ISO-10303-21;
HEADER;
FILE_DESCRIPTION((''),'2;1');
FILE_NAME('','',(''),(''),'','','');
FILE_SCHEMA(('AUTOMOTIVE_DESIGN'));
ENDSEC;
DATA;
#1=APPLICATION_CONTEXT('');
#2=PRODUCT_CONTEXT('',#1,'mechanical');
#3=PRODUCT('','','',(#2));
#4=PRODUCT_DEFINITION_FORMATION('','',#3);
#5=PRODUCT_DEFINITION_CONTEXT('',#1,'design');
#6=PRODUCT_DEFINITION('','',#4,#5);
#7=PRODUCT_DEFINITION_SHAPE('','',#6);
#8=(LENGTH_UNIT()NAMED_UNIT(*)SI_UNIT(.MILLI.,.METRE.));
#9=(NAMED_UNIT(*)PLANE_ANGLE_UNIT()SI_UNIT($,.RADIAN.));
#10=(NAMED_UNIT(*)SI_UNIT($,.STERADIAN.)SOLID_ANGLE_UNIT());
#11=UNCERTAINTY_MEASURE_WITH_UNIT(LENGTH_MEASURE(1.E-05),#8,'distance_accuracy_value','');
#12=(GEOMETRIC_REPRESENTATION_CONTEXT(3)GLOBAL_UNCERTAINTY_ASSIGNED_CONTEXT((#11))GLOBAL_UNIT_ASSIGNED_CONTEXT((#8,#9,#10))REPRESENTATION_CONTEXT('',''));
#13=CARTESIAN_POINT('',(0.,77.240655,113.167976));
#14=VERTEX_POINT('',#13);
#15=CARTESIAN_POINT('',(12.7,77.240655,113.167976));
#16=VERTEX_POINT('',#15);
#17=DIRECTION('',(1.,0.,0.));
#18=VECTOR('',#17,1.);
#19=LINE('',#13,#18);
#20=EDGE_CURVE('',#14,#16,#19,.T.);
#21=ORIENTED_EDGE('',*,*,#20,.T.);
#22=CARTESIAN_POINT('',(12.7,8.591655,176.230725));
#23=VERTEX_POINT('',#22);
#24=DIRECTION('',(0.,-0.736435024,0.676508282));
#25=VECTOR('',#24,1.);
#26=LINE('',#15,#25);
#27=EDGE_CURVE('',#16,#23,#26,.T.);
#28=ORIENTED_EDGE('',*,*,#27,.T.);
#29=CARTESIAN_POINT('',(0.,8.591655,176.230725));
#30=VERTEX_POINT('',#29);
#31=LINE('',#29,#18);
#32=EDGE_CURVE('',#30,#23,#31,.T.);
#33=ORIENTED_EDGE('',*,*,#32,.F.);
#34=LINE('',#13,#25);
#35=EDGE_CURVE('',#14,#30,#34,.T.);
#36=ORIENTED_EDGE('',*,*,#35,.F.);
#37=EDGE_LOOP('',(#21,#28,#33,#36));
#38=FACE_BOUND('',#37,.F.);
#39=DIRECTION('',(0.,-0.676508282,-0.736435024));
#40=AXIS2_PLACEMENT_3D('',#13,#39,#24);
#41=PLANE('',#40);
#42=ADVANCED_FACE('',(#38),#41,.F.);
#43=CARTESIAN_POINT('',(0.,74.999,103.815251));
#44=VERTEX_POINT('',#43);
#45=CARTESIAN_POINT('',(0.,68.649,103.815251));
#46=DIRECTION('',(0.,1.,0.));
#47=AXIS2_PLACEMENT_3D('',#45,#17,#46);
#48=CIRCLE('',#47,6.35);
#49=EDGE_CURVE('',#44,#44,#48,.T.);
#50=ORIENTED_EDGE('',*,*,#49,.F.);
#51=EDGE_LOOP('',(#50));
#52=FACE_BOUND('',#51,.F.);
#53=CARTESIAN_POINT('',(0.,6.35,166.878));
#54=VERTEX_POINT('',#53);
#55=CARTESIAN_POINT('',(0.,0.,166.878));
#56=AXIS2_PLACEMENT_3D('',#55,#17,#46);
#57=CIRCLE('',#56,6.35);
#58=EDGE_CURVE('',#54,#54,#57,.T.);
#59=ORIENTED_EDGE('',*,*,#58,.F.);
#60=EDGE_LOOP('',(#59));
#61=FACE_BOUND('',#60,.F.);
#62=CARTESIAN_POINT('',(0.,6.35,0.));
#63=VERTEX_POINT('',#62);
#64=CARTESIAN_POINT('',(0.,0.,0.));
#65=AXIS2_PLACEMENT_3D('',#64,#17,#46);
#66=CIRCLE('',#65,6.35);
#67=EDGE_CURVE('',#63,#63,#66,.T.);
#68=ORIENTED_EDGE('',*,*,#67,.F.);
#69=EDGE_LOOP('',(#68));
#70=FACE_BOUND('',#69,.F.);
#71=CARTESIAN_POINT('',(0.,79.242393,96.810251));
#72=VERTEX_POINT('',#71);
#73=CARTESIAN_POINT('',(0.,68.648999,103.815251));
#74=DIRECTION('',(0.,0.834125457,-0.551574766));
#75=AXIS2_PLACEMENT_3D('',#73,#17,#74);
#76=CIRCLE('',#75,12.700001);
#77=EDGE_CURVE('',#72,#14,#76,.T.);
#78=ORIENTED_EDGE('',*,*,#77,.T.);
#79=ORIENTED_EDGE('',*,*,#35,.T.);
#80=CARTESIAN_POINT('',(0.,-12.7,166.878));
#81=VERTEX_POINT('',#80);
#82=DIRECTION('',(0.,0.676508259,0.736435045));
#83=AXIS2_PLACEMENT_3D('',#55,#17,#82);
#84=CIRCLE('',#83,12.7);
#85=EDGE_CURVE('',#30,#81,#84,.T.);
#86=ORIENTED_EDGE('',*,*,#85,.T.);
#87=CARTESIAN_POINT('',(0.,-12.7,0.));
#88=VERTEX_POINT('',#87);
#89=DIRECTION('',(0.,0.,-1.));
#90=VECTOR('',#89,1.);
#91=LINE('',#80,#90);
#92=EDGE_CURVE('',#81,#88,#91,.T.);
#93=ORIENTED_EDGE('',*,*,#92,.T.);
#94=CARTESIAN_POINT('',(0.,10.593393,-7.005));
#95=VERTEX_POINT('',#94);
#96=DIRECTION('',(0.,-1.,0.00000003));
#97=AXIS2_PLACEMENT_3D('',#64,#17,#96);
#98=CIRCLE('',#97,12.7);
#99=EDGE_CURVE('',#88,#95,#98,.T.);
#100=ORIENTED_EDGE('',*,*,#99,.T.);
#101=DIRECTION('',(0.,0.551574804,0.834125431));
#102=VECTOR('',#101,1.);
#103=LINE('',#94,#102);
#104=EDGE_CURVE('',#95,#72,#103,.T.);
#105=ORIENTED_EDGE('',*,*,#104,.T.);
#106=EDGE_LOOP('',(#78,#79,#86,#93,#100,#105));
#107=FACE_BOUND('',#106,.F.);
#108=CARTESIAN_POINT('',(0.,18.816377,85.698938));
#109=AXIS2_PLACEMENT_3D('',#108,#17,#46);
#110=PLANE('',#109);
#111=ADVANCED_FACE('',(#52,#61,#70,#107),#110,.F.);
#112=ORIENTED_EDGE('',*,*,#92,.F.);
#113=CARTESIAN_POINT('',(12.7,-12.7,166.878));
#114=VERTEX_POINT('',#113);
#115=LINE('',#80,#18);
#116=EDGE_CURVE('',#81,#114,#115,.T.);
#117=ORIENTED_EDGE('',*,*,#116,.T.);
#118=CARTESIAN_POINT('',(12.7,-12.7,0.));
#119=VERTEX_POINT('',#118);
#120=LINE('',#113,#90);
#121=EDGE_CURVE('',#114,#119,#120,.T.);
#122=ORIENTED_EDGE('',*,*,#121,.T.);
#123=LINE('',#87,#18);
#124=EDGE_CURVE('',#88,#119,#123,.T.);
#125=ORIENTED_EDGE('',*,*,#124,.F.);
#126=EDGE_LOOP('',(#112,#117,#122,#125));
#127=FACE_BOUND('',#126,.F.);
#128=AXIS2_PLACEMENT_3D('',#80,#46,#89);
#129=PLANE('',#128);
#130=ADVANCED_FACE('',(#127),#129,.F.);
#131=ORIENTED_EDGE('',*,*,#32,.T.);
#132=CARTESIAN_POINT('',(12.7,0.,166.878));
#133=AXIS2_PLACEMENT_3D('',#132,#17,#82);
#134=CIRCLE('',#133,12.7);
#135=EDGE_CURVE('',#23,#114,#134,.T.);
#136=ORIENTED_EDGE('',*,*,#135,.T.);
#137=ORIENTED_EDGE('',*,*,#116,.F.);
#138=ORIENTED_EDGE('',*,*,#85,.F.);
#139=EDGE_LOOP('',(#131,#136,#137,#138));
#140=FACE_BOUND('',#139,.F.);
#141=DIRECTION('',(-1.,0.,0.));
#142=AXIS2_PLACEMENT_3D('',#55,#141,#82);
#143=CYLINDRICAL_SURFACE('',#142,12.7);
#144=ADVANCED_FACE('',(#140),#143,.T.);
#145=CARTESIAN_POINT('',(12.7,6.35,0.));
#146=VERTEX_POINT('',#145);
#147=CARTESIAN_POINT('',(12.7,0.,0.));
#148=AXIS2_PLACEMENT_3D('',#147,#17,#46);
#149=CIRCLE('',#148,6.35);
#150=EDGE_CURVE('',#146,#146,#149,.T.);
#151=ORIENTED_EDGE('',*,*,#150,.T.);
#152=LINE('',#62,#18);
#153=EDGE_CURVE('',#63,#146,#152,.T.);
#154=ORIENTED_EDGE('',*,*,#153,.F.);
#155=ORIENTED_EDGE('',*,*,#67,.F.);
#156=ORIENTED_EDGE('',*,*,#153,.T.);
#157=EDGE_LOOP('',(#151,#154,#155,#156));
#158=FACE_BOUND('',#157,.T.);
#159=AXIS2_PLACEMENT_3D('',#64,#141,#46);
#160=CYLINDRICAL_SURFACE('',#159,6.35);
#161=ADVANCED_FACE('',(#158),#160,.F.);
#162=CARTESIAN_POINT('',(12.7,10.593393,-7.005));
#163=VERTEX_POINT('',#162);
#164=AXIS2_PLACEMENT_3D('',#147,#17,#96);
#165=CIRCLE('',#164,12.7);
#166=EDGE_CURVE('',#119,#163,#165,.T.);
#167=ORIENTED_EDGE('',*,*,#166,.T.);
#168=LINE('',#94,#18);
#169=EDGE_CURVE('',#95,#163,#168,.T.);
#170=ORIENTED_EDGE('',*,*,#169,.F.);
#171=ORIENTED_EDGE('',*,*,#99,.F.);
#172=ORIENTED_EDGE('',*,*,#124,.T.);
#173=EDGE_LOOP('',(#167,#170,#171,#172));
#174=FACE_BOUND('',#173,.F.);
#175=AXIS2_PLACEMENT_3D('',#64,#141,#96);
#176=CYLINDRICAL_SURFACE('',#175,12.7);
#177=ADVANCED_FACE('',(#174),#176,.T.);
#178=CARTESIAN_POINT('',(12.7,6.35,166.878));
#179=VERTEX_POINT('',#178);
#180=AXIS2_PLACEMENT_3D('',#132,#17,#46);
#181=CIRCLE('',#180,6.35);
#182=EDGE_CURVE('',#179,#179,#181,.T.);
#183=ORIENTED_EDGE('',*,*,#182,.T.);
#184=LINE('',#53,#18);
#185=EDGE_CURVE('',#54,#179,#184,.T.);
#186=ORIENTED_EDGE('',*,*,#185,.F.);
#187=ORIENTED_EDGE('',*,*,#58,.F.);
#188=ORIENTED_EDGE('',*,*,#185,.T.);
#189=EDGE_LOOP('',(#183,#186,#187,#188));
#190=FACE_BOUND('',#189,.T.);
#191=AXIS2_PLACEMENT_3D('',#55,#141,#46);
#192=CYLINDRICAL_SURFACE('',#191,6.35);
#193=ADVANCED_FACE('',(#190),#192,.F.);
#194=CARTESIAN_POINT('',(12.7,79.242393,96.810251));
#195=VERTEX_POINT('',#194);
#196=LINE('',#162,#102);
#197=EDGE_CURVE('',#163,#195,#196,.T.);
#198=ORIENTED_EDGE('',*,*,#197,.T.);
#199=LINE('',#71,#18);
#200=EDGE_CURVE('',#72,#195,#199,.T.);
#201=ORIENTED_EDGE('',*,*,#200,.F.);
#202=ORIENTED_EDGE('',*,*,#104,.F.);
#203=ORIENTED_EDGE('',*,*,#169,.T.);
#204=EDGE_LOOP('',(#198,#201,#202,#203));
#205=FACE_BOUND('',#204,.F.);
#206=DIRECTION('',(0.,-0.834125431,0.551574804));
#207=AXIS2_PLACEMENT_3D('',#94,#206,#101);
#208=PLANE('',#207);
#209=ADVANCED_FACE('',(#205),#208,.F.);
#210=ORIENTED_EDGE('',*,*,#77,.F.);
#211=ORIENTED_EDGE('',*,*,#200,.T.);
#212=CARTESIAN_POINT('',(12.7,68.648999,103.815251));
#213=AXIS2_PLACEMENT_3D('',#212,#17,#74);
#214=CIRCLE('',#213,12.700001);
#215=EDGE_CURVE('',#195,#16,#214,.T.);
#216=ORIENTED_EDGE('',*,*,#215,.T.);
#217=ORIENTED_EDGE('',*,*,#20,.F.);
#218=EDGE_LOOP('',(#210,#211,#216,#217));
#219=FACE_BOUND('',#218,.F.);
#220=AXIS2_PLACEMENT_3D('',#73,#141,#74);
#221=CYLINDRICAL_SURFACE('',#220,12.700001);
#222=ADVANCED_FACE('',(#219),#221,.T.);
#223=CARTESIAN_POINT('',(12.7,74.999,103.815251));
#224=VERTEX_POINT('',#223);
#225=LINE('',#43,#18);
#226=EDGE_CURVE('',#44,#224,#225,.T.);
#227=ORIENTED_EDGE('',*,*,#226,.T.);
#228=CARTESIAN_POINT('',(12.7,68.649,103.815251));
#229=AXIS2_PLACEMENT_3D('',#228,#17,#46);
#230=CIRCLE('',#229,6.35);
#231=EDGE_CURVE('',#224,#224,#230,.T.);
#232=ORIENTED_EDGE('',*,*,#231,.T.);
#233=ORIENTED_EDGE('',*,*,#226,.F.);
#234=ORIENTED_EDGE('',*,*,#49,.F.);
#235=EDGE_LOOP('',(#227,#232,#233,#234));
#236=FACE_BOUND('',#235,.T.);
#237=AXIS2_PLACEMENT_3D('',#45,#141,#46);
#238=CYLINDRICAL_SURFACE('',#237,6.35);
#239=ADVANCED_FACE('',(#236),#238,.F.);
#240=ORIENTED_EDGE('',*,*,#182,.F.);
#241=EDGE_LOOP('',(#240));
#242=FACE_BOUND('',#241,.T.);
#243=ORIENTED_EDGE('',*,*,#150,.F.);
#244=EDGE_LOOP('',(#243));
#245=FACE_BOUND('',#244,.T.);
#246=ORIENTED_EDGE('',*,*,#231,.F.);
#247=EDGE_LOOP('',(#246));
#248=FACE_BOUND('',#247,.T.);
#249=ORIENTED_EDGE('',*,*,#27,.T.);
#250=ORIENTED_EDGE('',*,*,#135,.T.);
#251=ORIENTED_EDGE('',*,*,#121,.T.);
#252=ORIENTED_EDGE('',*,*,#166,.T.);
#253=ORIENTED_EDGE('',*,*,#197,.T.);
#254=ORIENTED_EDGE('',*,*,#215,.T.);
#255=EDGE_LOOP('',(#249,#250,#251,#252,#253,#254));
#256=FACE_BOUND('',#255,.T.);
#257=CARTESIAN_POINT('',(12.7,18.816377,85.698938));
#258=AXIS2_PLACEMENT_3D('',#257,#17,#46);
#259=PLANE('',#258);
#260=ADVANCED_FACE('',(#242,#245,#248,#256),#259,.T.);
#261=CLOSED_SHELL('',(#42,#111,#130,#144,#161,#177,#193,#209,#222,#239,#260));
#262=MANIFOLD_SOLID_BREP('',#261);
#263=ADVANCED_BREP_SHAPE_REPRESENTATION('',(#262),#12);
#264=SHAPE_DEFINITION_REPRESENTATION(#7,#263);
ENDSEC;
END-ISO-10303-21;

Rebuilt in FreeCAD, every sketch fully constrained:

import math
import FreeCAD as App
import Part
import Sketcher

V = App.Vector
Q = App.Units.Quantity

doc = App.newDocument("Part")
params = doc.addObject("Spreadsheet::Sheet", "Params")
for row, (alias, value) in enumerate([
    ("sketch1_diameter", "0.5 in"),
    ("sketch1_radius", "0.5 in"),
    ("sketch1_length", "4.9 in"),
    ("sketch1_height", "6.57 in"),
    ("sketch1_length2", "3.67 in"),
    ("pad1_length", "0.5 in"),
], start=1):
    params.set(f"A{row}", alias)
    params.set(f"B{row}", "=" + value)
    params.setAlias(f"B{row}", alias)

body = doc.addObject("PartDesign::Body", "Body")

# Sketch on YZ plane
sketch1 = body.newObject("Sketcher::SketchObject", "Sketch")
sketch1.AttachmentSupport = (doc.getObject("YZ_Plane"), [""])
sketch1.MapMode = "FlatFace"
sketch1.addGeometry(Part.LineSegment(V(77, 113, 0), V(9, 176, 0)), False)
sketch1.addGeometry(Part.ArcOfCircle(Part.Circle(V(0, 167, 0), V(0, 0, 1), 13), math.radians(47), math.radians(180)), False)
sketch1.addGeometry(Part.LineSegment(V(-13, 167, 0), V(-13, 0, 0)), False)
sketch1.addGeometry(Part.ArcOfCircle(Part.Circle(V(0, 0, 0), V(0, 0, 1), 13), math.radians(180), math.radians(327)), False)
sketch1.addGeometry(Part.LineSegment(V(11, -7, 0), V(79, 97, 0)), False)
sketch1.addGeometry(Part.ArcOfCircle(Part.Circle(V(69, 104, 0), V(0, 0, 1), 13), math.radians(-33), math.radians(47)), False)
sketch1.addGeometry(Part.Circle(V(0, 0, 0), V(0, 0, 1), 6), False)
sketch1.addGeometry(Part.Circle(V(0, 167, 0), V(0, 0, 1), 6), False)
sketch1.addGeometry(Part.Circle(V(69, 104, 0), V(0, 0, 1), 6), False)
sketch1.addConstraint(Sketcher.Constraint("Tangent", 0, 2, 1, 1))
sketch1.addConstraint(Sketcher.Constraint("Tangent", 1, 2, 2, 1))
sketch1.addConstraint(Sketcher.Constraint("Tangent", 2, 2, 3, 1))
sketch1.addConstraint(Sketcher.Constraint("Tangent", 3, 2, 4, 1))
sketch1.addConstraint(Sketcher.Constraint("Tangent", 4, 2, 5, 1))
sketch1.addConstraint(Sketcher.Constraint("Tangent", 5, 2, 0, 1))
sketch1.addConstraint(Sketcher.Constraint("Vertical", 2))
sketch1.addConstraint(Sketcher.Constraint("Coincident", 3, 3, -1, 1))
sketch1.addConstraint(Sketcher.Constraint("Coincident", 6, 3, -1, 1))
sketch1.addConstraint(Sketcher.Constraint("Coincident", 7, 3, 1, 3))
sketch1.addConstraint(Sketcher.Constraint("Coincident", 8, 3, 5, 3))
sketch1.addConstraint(Sketcher.Constraint("Equal", 1, 3))
sketch1.addConstraint(Sketcher.Constraint("Equal", 3, 5))
sketch1.addConstraint(Sketcher.Constraint("Equal", 6, 7))
sketch1.addConstraint(Sketcher.Constraint("Equal", 7, 8))
sketch1.addConstraint(Sketcher.Constraint("Diameter", 6, Q("0.5 in")))
sketch1.addConstraint(Sketcher.Constraint("Radius", 1, Q("0.5 in")))
sketch1.addConstraint(Sketcher.Constraint("Distance", 4, Q("4.9 in")))
sketch1.addConstraint(Sketcher.Constraint("DistanceY", 2, 2, 2, 1, Q("6.57 in")))
sketch1.addConstraint(Sketcher.Constraint("Distance", 0, Q("3.67 in")))
sketch1.setExpression("Constraints[15]", "Params.sketch1_diameter")
sketch1.setExpression("Constraints[16]", "Params.sketch1_radius")
sketch1.setExpression("Constraints[17]", "Params.sketch1_length")
sketch1.setExpression("Constraints[18]", "Params.sketch1_height")
sketch1.setExpression("Constraints[19]", "Params.sketch1_length2")
pad1 = body.newObject("PartDesign::Pad", "Pad")
pad1.Profile = sketch1
pad1.setExpression("Length", "Params.pad1_length")

doc.recompute()
